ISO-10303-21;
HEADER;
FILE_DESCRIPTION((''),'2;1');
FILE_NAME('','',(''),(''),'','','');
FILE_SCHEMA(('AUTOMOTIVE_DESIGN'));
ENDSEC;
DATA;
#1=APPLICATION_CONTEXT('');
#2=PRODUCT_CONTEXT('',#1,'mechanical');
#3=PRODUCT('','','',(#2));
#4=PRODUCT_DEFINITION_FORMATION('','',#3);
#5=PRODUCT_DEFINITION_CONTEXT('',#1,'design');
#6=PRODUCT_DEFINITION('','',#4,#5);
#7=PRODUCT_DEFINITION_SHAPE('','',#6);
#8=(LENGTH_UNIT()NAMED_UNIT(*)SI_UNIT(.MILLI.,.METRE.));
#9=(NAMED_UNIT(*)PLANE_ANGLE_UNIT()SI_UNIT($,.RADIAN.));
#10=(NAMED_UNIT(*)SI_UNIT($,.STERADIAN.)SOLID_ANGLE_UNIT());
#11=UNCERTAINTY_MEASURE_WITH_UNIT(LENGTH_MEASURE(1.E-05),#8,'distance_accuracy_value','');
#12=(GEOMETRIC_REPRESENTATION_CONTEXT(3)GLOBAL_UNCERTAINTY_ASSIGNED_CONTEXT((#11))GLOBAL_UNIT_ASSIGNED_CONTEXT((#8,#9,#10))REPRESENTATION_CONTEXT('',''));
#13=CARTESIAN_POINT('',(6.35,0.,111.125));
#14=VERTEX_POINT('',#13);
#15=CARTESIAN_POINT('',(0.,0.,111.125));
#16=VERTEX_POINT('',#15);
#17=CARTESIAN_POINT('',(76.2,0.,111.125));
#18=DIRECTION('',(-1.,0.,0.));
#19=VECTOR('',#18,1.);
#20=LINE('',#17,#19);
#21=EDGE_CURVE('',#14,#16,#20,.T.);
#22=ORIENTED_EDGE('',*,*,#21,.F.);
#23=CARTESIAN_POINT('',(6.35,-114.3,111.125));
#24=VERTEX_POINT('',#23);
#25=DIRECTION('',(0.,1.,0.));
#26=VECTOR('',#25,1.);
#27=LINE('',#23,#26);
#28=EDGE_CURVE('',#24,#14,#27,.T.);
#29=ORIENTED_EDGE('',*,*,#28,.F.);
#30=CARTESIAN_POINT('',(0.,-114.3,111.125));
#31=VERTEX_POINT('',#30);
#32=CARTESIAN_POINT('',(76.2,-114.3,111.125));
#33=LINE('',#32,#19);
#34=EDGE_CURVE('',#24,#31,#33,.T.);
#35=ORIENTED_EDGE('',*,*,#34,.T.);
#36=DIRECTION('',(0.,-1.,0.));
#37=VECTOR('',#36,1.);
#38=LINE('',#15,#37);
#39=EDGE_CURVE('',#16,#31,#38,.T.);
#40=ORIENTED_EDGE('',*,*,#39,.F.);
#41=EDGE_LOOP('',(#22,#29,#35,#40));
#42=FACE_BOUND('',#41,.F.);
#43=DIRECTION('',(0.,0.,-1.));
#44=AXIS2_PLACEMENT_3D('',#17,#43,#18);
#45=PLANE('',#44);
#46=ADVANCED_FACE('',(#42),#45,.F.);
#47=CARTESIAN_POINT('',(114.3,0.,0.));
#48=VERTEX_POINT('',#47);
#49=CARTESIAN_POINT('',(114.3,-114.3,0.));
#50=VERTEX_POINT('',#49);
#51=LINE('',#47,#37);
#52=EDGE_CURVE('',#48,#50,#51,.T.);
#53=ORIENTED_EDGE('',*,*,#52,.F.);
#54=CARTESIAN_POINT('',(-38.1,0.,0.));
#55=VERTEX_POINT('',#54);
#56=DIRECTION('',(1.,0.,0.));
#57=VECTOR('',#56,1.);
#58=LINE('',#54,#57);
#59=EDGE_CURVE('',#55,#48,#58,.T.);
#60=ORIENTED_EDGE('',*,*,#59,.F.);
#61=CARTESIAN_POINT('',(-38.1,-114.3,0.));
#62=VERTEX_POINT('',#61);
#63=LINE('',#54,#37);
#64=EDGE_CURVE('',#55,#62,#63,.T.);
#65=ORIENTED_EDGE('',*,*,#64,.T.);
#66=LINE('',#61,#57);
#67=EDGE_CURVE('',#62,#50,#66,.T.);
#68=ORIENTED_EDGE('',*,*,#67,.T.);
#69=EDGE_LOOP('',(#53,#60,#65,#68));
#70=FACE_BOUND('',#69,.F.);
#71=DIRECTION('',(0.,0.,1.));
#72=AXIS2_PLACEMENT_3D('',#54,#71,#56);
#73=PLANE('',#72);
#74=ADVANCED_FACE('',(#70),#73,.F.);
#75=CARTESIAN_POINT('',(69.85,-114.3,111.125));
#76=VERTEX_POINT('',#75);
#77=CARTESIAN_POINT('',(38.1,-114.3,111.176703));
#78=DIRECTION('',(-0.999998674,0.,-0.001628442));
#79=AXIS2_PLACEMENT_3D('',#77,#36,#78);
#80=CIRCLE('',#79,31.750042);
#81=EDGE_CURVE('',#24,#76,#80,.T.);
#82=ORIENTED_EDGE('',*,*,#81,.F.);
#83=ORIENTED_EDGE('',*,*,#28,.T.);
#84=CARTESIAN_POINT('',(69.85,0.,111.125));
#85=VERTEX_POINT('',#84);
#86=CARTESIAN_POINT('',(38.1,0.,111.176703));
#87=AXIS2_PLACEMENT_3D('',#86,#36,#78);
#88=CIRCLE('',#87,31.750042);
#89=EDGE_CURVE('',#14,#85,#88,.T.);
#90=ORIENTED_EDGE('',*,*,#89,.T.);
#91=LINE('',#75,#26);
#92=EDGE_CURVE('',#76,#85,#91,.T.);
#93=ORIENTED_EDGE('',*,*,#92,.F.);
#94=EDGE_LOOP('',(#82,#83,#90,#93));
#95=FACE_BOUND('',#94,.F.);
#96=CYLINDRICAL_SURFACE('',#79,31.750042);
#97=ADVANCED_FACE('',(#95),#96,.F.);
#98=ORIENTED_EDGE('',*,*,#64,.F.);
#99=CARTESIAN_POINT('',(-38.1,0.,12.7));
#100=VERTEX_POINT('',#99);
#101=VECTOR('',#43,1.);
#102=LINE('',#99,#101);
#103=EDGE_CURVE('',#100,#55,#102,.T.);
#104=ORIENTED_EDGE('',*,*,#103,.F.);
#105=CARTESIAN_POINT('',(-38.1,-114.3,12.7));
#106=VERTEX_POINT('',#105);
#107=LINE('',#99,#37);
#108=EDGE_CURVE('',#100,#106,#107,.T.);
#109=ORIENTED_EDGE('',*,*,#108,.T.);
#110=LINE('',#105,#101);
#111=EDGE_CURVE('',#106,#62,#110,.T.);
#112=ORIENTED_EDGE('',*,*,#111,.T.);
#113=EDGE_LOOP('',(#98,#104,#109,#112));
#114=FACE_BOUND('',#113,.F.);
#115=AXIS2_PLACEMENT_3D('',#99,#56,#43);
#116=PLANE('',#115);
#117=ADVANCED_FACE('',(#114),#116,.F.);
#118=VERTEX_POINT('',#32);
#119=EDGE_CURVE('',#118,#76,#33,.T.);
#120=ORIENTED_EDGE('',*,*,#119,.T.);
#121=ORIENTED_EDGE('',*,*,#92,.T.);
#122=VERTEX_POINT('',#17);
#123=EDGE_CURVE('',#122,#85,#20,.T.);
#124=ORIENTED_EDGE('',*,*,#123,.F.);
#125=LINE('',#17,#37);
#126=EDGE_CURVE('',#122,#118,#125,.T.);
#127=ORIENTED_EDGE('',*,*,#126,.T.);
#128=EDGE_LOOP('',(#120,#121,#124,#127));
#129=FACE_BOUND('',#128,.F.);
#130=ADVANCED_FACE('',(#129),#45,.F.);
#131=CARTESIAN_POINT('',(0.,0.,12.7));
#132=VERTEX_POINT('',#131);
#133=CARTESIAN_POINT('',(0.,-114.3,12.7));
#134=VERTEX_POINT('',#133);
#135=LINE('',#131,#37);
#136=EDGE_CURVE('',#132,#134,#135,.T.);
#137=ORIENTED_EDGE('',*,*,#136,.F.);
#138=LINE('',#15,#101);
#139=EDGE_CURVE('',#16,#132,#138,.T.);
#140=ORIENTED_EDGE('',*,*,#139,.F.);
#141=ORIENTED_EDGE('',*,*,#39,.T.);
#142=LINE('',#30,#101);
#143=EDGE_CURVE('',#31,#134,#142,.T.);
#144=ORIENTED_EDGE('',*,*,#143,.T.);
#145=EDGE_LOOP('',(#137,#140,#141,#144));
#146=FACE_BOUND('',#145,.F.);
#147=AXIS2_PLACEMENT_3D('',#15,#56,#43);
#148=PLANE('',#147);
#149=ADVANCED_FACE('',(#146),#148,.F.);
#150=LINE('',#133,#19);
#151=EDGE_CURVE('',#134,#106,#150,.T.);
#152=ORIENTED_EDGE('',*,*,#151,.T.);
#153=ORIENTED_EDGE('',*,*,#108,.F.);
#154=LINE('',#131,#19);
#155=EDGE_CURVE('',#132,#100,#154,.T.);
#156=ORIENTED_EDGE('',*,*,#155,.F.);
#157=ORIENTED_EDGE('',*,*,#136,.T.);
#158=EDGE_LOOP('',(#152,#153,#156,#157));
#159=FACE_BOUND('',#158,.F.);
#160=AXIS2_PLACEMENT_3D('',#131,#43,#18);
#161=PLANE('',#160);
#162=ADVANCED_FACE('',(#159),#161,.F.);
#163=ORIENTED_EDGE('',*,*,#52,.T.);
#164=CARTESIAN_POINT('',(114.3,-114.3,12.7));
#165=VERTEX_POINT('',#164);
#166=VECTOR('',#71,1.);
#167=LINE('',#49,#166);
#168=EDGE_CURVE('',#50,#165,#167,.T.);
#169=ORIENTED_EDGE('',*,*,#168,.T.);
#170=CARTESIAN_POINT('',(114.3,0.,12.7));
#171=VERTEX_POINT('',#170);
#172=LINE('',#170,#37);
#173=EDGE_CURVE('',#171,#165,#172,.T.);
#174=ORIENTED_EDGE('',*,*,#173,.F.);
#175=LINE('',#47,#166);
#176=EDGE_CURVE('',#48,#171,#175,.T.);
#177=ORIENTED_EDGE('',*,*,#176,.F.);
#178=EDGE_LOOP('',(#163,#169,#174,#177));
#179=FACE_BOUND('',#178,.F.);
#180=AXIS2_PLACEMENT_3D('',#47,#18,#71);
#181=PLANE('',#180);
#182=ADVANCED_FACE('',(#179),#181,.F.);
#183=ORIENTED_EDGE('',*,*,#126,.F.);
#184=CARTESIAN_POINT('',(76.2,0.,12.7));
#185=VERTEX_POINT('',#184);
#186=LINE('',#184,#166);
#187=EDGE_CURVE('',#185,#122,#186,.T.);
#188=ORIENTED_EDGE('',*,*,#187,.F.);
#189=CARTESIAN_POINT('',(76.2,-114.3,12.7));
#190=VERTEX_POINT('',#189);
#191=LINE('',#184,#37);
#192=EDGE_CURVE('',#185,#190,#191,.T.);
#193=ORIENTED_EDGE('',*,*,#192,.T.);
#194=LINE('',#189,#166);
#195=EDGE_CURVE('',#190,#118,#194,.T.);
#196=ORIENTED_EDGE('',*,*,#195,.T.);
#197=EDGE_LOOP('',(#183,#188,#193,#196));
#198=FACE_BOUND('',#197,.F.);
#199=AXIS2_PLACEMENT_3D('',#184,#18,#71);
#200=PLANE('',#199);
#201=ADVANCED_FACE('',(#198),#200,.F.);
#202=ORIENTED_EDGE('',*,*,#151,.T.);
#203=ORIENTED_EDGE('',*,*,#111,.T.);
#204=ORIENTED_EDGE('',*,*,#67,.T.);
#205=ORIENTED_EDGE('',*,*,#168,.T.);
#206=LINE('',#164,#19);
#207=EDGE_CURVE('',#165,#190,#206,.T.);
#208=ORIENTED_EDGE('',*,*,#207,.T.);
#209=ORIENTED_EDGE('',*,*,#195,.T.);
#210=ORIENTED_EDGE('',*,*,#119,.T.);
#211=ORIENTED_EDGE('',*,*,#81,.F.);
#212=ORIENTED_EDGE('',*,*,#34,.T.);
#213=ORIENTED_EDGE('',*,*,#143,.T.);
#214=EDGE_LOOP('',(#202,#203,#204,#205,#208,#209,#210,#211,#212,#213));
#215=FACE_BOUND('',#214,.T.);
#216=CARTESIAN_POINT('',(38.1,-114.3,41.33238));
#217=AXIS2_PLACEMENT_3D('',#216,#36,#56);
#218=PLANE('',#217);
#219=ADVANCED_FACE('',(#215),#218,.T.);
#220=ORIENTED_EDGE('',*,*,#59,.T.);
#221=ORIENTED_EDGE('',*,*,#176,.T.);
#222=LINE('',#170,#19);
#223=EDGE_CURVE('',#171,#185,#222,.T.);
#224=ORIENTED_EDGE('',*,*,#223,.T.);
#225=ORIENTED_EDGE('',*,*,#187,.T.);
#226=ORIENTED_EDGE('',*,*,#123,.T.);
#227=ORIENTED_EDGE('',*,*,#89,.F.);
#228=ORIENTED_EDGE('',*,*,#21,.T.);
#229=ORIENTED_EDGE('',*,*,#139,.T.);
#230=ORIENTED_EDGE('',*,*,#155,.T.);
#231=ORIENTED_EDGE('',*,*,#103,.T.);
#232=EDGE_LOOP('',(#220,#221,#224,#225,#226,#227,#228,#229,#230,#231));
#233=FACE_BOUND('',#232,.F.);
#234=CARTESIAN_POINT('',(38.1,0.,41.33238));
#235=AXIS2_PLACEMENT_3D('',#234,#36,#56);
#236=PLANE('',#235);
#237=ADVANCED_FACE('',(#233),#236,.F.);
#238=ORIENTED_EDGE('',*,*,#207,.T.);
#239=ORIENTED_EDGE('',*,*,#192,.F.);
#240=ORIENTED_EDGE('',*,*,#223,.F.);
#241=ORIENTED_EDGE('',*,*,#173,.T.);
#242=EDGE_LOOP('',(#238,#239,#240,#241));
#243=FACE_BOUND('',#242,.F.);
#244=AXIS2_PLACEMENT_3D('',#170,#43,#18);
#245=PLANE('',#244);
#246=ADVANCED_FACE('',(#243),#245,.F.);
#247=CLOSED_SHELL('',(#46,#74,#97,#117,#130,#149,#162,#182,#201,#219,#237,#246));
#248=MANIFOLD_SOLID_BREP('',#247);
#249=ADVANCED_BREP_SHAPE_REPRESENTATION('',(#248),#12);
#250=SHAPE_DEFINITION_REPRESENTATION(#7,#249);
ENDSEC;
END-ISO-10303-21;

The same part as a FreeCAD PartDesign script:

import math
import FreeCAD as App
import Part
import Sketcher
from FreeCAD import Vector
Q = App.Units.Quantity


def add_polygon(sketch, points):
    """Adds a closed chain of lines whose ends are joined by coincident constraints."""
    first, n = sketch.GeometryCount, len(points)
    for a, b in zip(points, points[1:] + points[:1]):
        sketch.addGeometry(Part.LineSegment(App.Vector(*a, 0), App.Vector(*b, 0)), False)
    for i in range(n):
        sketch.addConstraint(Sketcher.Constraint("Coincident", first + i, 2, first + (i + 1) % n, 1))

doc = App.newDocument("Part")
body = doc.addObject("PartDesign::Body", "Body")

# Sketch on XZ plane
sketch1 = body.newObject("Sketcher::SketchObject", "Sketch")
sketch1.AttachmentSupport = (doc.getObject("XZ_Plane"), [""])
sketch1.MapMode = "FlatFace"
add_polygon(sketch1, [(-38.1, 0), (114.3, 0), (114.3, 12.7), (76.2, 12.7), (76.2, 111.125), (0, 111.125), (0, 12.7), (-38.1, 12.7)])  # lines 0-7
sketch1.addConstraint([
    Sketcher.Constraint("Horizontal", 0),
    Sketcher.Constraint("Vertical", 1),
    Sketcher.Constraint("Horizontal", 2),
    Sketcher.Constraint("Vertical", 3),
    Sketcher.Constraint("Horizontal", 4),
    Sketcher.Constraint("Vertical", 5),
    Sketcher.Constraint("Horizontal", 6),
    Sketcher.Constraint("Vertical", 7),
    Sketcher.Constraint("PointOnObject", 0, 2, -1),
    Sketcher.Constraint("PointOnObject", 4, 2, -2),
    Sketcher.Constraint("Horizontal", 2, 2, 5, 2),
    Sketcher.Constraint("Equal", 2, 6),
    Sketcher.Constraint("DistanceX", 0, 1, 0, 2, Q("6 in")),
    Sketcher.Constraint("DistanceX", 4, 2, 4, 1, Q("3 in")),
    Sketcher.Constraint("DistanceY", 1, 1, 1, 2, Q("0.5 in")),
    Sketcher.Constraint("DistanceY", 3, 1, 3, 2, Q("3.875 in")),
])
pad1 = body.newObject("PartDesign::Pad", "Pad")
pad1.Profile = sketch1
pad1.Length = Q("4.5 in")

# Sketch on XZ plane
sketch2 = body.newObject("Sketcher::SketchObject", "Sketch001")
sketch2.AttachmentSupport = (doc.getObject("XZ_Plane"), [""])
sketch2.MapMode = "FlatFace"
sketch2.AttachmentOffset = App.Placement(Vector(0, 0, 4.5 * 25.4), App.Rotation())
sketch2.addGeometry([
    Part.LineSegment(Vector(69.85, 111.125, 0), Vector(6.35, 111.125, 0)),
    Part.ArcOfCircle(Part.Circle(Vector(38.1, 111.176703, 0), Vector(0, 0, 1), 31.750042), math.radians(-179.906697), math.radians(-0.093303)),
], False)
sketch2.addConstraint([
    Sketcher.Constraint("Coincident", 0, 1, 1, 2),
    Sketcher.Constraint("Coincident", 1, 1, 0, 2),
    Sketcher.Constraint("Horizontal", 0),
    Sketcher.Constraint("DistanceX", 0, 2, 0, 1, Q("2.5 in")),
    Sketcher.Constraint("DistanceX", -1, 1, 1, 3, Q("1.5 in")),
    Sketcher.Constraint("DistanceY", -1, 1, 0, 1, Q("4.375 in")),
    Sketcher.Constraint("DistanceY", -1, 1, 1, 3, 111.176703),
])
pocket1 = body.newObject("PartDesign::Pocket", "Pocket")
pocket1.Profile = sketch2
pocket1.Type = "ThroughAll"

doc.recompute()
